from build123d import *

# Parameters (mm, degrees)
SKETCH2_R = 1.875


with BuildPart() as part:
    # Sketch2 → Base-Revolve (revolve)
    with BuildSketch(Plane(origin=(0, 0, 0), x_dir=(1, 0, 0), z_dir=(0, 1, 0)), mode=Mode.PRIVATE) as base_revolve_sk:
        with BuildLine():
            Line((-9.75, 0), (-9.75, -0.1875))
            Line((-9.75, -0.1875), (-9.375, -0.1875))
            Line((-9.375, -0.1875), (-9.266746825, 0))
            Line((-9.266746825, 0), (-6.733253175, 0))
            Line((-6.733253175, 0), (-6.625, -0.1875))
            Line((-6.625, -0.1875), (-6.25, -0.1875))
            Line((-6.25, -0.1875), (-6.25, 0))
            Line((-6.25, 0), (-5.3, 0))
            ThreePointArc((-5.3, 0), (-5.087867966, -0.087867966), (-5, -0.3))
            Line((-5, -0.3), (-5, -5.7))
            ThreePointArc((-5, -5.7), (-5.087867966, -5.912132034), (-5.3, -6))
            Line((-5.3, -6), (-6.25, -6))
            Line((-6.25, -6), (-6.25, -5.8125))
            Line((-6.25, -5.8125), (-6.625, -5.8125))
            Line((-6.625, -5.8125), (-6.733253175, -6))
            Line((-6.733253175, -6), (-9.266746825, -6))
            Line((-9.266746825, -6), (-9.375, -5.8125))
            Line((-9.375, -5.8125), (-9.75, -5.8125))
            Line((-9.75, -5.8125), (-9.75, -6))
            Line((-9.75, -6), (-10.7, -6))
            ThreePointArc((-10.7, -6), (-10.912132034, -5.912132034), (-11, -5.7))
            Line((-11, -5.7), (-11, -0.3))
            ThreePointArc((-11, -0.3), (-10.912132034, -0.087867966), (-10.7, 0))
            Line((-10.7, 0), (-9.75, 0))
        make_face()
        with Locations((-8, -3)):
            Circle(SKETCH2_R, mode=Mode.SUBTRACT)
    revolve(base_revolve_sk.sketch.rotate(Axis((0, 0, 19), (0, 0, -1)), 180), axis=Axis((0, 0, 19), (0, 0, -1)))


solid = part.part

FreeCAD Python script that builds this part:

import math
import FreeCAD as App
import Part
import Sketcher
Q = App.Units.Quantity

doc = App.newDocument("Part")
params = doc.addObject("Spreadsheet::Sheet", "Params")
for row, (alias, value) in enumerate([
    ("sketch1_radius", "0.3 mm"),
    ("sketch1_diameter", "3.75 mm"),
    ("sketch1_height", "5.4 mm"),
    ("sketch1_width", "0.95 mm"),
    ("revolution_angle", "360 deg"),
], start=1):
    params.set(f"A{row}", alias)
    params.set(f"B{row}", "=" + value)
    params.setAlias(f"B{row}", alias)

body = doc.addObject("PartDesign::Body", "Body")

# Sketch on XZ plane
sketch1 = doc.addObject("Sketcher::SketchObject", "Sketch")
body.addObject(sketch1)
sketch1.AttachmentSupport = (doc.XZ_Plane, [""])
sketch1.MapMode = "FlatFace"
sketch1.addGeometry([
    Part.LineSegment(App.Vector(-9.75, 0.1875, 0), App.Vector(-9.75, 0, 0)),  # 0
    Part.LineSegment(App.Vector(-9.75, 0, 0), App.Vector(-10.7, 0, 0)),  # 1
    Part.ArcOfCircle(Part.Circle(App.Vector(-10.7, 0.3, 0), App.Vector(0, 0, 1), 0.3), math.radians(-180), math.radians(-90)),  # 2
    Part.LineSegment(App.Vector(-11, 0.3, 0), App.Vector(-11, 5.7, 0)),  # 3
    Part.ArcOfCircle(Part.Circle(App.Vector(-10.7, 5.7, 0), App.Vector(0, 0, 1), 0.3), math.radians(90), math.radians(180)),  # 4
    Part.LineSegment(App.Vector(-10.7, 6, 0), App.Vector(-9.75, 6, 0)),  # 5
    Part.LineSegment(App.Vector(-9.75, 6, 0), App.Vector(-9.75, 5.8125, 0)),  # 6
    Part.LineSegment(App.Vector(-9.75, 5.8125, 0), App.Vector(-9.375, 5.8125, 0)),  # 7
    Part.LineSegment(App.Vector(-9.375, 5.8125, 0), App.Vector(-9.266747, 6, 0)),  # 8
    Part.LineSegment(App.Vector(-9.266747, 6, 0), App.Vector(-6.733253, 6, 0)),  # 9
    Part.LineSegment(App.Vector(-6.733253, 6, 0), App.Vector(-6.625, 5.8125, 0)),  # 10
    Part.LineSegment(App.Vector(-6.625, 5.8125, 0), App.Vector(-6.25, 5.8125, 0)),  # 11
    Part.LineSegment(App.Vector(-6.25, 5.8125, 0), App.Vector(-6.25, 6, 0)),  # 12
    Part.LineSegment(App.Vector(-6.25, 6, 0), App.Vector(-5.3, 6, 0)),  # 13
    Part.ArcOfCircle(Part.Circle(App.Vector(-5.3, 5.7, 0), App.Vector(0, 0, 1), 0.3), math.radians(0), math.radians(90)),  # 14
    Part.LineSegment(App.Vector(-5, 5.7, 0), App.Vector(-5, 0.3, 0)),  # 15
    Part.ArcOfCircle(Part.Circle(App.Vector(-5.3, 0.3, 0), App.Vector(0, 0, 1), 0.3), math.radians(-90), math.radians(0)),  # 16
    Part.LineSegment(App.Vector(-5.3, 0, 0), App.Vector(-6.25, 0, 0)),  # 17
    Part.LineSegment(App.Vector(-6.25, 0, 0), App.Vector(-6.25, 0.1875, 0)),  # 18
    Part.LineSegment(App.Vector(-6.25, 0.1875, 0), App.Vector(-6.625, 0.1875, 0)),  # 19
    Part.LineSegment(App.Vector(-6.625, 0.1875, 0), App.Vector(-6.733253, 0, 0)),  # 20
    Part.LineSegment(App.Vector(-6.733253, 0, 0), App.Vector(-9.266747, 0, 0)),  # 21
    Part.LineSegment(App.Vector(-9.266747, 0, 0), App.Vector(-9.375, 0.1875, 0)),  # 22
    Part.LineSegment(App.Vector(-9.375, 0.1875, 0), App.Vector(-9.75, 0.1875, 0)),  # 23
    Part.Circle(App.Vector(-8, 3, 0), App.Vector(0, 0, 1), 1.875),  # 24
], False)
sketch1.addConstraint([
    Sketcher.Constraint("Coincident", 0, 2, 1, 1),
    Sketcher.Constraint("Tangent", 1, 2, 2, 2),
    Sketcher.Constraint("Tangent", 2, 1, 3, 1),
    Sketcher.Constraint("Tangent", 3, 2, 4, 2),
    Sketcher.Constraint("Tangent", 4, 1, 5, 1),
    Sketcher.Constraint("Coincident", 5, 2, 6, 1),
    Sketcher.Constraint("Coincident", 6, 2, 7, 1),
    Sketcher.Constraint("Coincident", 7, 2, 8, 1),
    Sketcher.Constraint("Coincident", 8, 2, 9, 1),
    Sketcher.Constraint("Coincident", 9, 2, 10, 1),
    Sketcher.Constraint("Coincident", 10, 2, 11, 1),
    Sketcher.Constraint("Coincident", 11, 2, 12, 1),
    Sketcher.Constraint("Coincident", 12, 2, 13, 1),
    Sketcher.Constraint("Tangent", 13, 2, 14, 2),
    Sketcher.Constraint("Tangent", 14, 1, 15, 1),
    Sketcher.Constraint("Tangent", 15, 2, 16, 2),
    Sketcher.Constraint("Tangent", 16, 1, 17, 1),
    Sketcher.Constraint("Coincident", 17, 2, 18, 1),
    Sketcher.Constraint("Coincident", 18, 2, 19, 1),
    Sketcher.Constraint("Coincident", 19, 2, 20, 1),
    Sketcher.Constraint("Coincident", 20, 2, 21, 1),
    Sketcher.Constraint("Coincident", 21, 2, 22, 1),
    Sketcher.Constraint("Coincident", 22, 2, 23, 1),
    Sketcher.Constraint("Coincident", 23, 2, 0, 1),
    Sketcher.Constraint("Vertical", 0),
    Sketcher.Constraint("Horizontal", 1),
    Sketcher.Constraint("Vertical", 3),
    Sketcher.Constraint("Horizontal", 5),
    Sketcher.Constraint("Vertical", 6),
    Sketcher.Constraint("Horizontal", 7),
    Sketcher.Constraint("Horizontal", 9),
    Sketcher.Constraint("Horizontal", 11),
    Sketcher.Constraint("Vertical", 12),
    Sketcher.Constraint("Horizontal", 13),
    Sketcher.Constraint("Vertical", 15),
    Sketcher.Constraint("Horizontal", 17),
    Sketcher.Constraint("Vertical", 18),
    Sketcher.Constraint("Horizontal", 19),
    Sketcher.Constraint("Horizontal", 21),
    Sketcher.Constraint("Horizontal", 23),
    Sketcher.Constraint("Equal", 2, 4),
    Sketcher.Constraint("Equal", 4, 14),
    Sketcher.Constraint("Equal", 14, 16),
    Sketcher.Constraint("PointOnObject", 0, 2, -1),
    Sketcher.Constraint("PointOnObject", 16, 1, -1),
    Sketcher.Constraint("PointOnObject", 20, 2, -1),
    Sketcher.Constraint("Parallel", 8, 20),
    Sketcher.Constraint("Parallel", 10, 22),
    Sketcher.Constraint("Horizontal", 4, 3, 14, 3),
    Sketcher.Constraint("Horizontal", 5, 2, 8, 2),
    Sketcher.Constraint("Horizontal", 7, 2, 10, 2),
    Sketcher.Constraint("Horizontal", 19, 2, 22, 2),
    Sketcher.Constraint("Vertical", 0, 2, 5, 2),
    Sketcher.Constraint("Vertical", 12, 2, 17, 2),
    Sketcher.Constraint("Vertical", 10, 2, 19, 2),
    Sketcher.Constraint("Vertical", 9, 2, 20, 2),
    Sketcher.Constraint("Vertical", 8, 2, 21, 2),
    Sketcher.Constraint("Vertical", 7, 2, 22, 2),
    Sketcher.Constraint("Equal", 7, 11),
    Sketcher.Constraint("Equal", 5, 13),
    Sketcher.Constraint("Radius", 2, Q("0.3 mm")),
    Sketcher.Constraint("Diameter", 24, Q("3.75 mm")),
    Sketcher.Constraint("Angle", 8, Q("60 deg")),
    Sketcher.Constraint("DistanceY", 3, 1, 3, 2, Q("5.4 mm")),
    Sketcher.Constraint("DistanceX", 24, 3, -1, 1, Q("8 mm")),
    Sketcher.Constraint("DistanceY", -1, 1, 24, 3, Q("3 mm")),
    Sketcher.Constraint("DistanceX", 2, 1, -1, 1, Q("11 mm")),
    Sketcher.Constraint("DistanceX", 14, 1, -1, 1, Q("5 mm")),
    Sketcher.Constraint("DistanceX", 1, 2, 1, 1, Q("0.95 mm")),
    Sketcher.Constraint("DistanceX", 7, 1, 7, 2, Q("0.375 mm")),
    Sketcher.Constraint("DistanceY", 0, 2, 0, 1, Q("0.1875 mm")),
])
sketch1.setExpression("Constraints[60]", "Params.sketch1_radius")
sketch1.setExpression("Constraints[61]", "Params.sketch1_diameter")
sketch1.setExpression("Constraints[63]", "Params.sketch1_height")
sketch1.setExpression("Constraints[68]", "Params.sketch1_width")
revolution = doc.addObject("PartDesign::Revolution", "Revolution")
body.addObject(revolution)
revolution.Profile = sketch1
revolution.ReferenceAxis = (sketch1, ["V_Axis"])
revolution.setExpression("Angle", "Params.revolution_angle")

doc.recompute()
